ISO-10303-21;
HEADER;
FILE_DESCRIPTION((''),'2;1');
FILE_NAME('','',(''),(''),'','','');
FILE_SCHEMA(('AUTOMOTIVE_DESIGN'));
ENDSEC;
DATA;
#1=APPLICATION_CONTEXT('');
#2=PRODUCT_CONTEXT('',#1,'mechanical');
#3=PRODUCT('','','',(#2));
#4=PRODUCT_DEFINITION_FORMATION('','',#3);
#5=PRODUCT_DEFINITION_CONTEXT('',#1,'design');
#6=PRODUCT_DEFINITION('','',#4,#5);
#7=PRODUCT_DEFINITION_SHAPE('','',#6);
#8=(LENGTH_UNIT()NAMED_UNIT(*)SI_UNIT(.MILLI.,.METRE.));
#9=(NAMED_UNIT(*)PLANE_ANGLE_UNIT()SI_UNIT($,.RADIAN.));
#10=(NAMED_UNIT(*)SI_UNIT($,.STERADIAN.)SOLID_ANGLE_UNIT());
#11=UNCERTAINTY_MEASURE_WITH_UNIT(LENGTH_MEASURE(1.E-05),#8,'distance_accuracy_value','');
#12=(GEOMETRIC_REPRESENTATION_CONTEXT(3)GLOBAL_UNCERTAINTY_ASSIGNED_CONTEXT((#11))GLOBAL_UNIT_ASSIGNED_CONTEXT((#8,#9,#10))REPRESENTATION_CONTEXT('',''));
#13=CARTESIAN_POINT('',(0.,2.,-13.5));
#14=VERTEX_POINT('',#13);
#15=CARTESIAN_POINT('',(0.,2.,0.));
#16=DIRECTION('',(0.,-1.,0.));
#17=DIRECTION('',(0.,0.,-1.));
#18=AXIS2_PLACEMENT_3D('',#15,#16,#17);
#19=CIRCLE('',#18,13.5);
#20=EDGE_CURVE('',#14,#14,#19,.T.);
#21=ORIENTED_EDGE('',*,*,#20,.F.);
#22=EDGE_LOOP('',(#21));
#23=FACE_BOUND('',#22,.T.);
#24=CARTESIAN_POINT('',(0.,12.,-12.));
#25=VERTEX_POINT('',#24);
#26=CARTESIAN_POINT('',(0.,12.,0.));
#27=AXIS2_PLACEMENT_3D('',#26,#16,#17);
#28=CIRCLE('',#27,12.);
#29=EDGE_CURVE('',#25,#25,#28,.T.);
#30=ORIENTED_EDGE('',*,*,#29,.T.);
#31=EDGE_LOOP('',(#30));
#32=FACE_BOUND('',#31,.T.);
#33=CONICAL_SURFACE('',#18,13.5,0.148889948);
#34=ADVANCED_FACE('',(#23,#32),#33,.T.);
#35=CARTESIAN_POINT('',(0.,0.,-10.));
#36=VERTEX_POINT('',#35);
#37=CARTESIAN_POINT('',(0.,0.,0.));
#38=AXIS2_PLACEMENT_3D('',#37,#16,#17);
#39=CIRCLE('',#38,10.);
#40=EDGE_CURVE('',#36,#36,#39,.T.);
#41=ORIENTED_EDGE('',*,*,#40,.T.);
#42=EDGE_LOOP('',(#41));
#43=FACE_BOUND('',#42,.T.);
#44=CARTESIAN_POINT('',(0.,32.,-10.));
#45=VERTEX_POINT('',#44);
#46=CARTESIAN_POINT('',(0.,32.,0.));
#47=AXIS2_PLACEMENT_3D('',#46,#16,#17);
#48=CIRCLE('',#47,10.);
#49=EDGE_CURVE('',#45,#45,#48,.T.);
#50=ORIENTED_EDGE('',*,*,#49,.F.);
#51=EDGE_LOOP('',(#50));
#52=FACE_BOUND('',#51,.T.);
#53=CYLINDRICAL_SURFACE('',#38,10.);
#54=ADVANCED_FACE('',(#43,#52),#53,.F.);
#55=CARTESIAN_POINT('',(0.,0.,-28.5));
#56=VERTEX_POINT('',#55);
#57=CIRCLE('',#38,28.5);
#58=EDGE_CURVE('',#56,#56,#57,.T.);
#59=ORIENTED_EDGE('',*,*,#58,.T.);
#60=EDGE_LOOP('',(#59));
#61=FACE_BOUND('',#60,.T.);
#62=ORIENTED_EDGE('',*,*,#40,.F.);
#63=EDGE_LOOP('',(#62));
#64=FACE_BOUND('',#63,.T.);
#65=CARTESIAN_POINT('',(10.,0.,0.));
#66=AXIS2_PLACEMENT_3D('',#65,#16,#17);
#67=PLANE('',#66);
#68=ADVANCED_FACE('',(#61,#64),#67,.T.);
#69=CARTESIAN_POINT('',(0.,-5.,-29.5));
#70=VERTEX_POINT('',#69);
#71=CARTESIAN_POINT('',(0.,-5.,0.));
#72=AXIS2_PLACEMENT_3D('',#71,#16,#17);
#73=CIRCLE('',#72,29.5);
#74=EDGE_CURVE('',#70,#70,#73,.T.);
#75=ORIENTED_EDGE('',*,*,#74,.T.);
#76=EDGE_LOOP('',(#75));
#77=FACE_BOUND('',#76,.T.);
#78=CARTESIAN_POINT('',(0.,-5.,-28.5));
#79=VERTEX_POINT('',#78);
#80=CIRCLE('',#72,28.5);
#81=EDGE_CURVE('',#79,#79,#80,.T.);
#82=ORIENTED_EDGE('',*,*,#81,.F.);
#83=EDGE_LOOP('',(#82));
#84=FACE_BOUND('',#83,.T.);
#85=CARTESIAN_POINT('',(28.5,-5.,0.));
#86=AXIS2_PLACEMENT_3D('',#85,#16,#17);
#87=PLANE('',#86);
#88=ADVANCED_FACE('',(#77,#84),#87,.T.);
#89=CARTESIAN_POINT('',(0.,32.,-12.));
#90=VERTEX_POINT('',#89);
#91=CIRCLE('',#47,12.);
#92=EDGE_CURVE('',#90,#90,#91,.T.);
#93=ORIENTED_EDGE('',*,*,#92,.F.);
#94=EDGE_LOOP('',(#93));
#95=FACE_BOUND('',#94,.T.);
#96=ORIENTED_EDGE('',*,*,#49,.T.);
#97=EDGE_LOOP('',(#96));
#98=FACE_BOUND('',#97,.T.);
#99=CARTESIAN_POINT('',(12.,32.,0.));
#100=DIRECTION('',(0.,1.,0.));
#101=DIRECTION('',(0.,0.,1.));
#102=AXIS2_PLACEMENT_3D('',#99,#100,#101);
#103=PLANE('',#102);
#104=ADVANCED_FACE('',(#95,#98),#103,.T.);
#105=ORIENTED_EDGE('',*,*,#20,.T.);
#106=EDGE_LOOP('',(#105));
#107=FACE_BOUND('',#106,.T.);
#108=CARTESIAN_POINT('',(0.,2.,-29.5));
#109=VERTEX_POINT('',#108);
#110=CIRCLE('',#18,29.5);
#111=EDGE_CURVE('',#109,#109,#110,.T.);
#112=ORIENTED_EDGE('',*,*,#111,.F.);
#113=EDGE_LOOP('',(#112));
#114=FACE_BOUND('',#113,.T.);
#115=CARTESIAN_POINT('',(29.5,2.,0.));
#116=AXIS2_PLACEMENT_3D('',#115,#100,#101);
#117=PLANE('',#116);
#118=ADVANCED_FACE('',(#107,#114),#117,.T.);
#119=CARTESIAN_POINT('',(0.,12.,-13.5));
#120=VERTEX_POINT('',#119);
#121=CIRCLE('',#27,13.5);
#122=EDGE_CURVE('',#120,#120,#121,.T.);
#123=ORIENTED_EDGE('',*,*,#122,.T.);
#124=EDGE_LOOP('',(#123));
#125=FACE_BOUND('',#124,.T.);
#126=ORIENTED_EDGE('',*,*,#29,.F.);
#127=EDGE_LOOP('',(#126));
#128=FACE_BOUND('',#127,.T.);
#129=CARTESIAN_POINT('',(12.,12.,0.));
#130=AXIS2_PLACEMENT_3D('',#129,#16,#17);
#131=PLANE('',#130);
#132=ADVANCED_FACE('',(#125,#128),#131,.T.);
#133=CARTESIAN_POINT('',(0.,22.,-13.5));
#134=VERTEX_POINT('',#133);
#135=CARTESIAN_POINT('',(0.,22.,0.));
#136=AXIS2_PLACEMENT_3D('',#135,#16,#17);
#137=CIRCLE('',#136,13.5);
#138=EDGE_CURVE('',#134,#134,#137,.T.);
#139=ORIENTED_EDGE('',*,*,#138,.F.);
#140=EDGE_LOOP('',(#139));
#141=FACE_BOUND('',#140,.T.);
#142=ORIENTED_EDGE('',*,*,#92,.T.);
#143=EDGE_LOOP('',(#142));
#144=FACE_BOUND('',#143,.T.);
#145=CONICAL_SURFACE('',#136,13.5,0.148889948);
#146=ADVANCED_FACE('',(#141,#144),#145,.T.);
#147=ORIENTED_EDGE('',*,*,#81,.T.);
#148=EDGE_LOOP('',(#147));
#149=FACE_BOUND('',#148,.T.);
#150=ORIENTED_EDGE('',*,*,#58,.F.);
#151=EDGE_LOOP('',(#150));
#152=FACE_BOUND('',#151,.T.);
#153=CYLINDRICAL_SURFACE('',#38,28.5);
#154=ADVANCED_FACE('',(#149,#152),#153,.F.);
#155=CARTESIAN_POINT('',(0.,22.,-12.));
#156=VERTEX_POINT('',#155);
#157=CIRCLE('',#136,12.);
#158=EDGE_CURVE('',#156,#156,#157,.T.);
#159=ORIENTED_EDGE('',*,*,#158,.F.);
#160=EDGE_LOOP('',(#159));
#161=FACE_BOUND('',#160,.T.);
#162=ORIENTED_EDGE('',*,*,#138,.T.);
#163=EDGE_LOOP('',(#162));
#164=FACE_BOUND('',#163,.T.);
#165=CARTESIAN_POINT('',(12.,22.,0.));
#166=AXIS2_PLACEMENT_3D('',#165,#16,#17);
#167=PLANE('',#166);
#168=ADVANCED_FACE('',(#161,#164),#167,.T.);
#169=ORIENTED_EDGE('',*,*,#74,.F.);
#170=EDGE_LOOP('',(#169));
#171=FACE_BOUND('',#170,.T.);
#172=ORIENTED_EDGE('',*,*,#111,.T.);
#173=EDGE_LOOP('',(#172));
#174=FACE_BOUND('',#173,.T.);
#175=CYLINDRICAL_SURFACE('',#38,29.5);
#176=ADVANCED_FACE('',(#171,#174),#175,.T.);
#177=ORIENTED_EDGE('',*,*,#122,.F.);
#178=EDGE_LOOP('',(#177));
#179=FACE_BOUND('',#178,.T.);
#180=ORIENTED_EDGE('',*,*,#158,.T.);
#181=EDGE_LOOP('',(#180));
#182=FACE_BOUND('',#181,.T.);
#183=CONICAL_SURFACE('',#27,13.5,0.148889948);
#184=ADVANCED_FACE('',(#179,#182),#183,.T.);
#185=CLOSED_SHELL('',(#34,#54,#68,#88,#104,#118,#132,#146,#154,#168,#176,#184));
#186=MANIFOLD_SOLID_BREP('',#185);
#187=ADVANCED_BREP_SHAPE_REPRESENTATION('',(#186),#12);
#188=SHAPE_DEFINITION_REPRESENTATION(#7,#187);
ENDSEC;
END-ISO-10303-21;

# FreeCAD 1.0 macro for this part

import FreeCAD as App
import Part
import Sketcher
Q = App.Units.Quantity


def add_polygon(sketch, points):
    """Adds a closed chain of lines whose ends are joined by coincident constraints."""
    first, n = sketch.GeometryCount, len(points)
    for a, b in zip(points, points[1:] + points[:1]):
        sketch.addGeometry(Part.LineSegment(App.Vector(*a, 0), App.Vector(*b, 0)), False)
    for i in range(n):
        sketch.addConstraint(Sketcher.Constraint("Coincident", first + i, 2, first + (i + 1) % n, 1))

doc = App.newDocument("Part")
params = doc.addObject("Spreadsheet::Sheet", "Params")
for row, (alias, value) in enumerate([
    ("sketch1_width", "1 mm"),
    ("sketch1_width2", "16 mm"),
    ("sketch1_width3", "2 mm"),
    ("sketch1_height", "32 mm"),
    ("sketch1_height2", "5 mm"),
    ("revolution_angle", "360 deg"),
], start=1):
    params.set(f"A{row}", alias)
    params.set(f"B{row}", "=" + value)
    params.setAlias(f"B{row}", alias)

body = doc.addObject("PartDesign::Body", "Body")

sketch1 = body.newObject("Sketcher::SketchObject", "Sketch")
sketch1.AttachmentSupport = (doc.getObject("XY_Plane"), [""])
sketch1.MapMode = "FlatFace"
add_polygon(sketch1, [(10, 32), (10, 0), (28.5, 0), (28.5, -5), (29.5, -5), (29.5, 2), (13.5, 2), (12, 12), (13.5, 12), (12, 22), (13.5, 22), (12, 32)])
sketch1.addConstraint(Sketcher.Constraint("Vertical", 0))
sketch1.addConstraint(Sketcher.Constraint("Horizontal", 1))
sketch1.addConstraint(Sketcher.Constraint("Vertical", 2))
sketch1.addConstraint(Sketcher.Constraint("Horizontal", 3))
sketch1.addConstraint(Sketcher.Constraint("Vertical", 4))
sketch1.addConstraint(Sketcher.Constraint("Horizontal", 5))
sketch1.addConstraint(Sketcher.Constraint("Horizontal", 7))
sketch1.addConstraint(Sketcher.Constraint("Horizontal", 9))
sketch1.addConstraint(Sketcher.Constraint("Horizontal", 11))
sketch1.addConstraint(Sketcher.Constraint("PointOnObject", 0, 2, -1))
sketch1.addConstraint(Sketcher.Constraint("Parallel", 6, 8))
sketch1.addConstraint(Sketcher.Constraint("Parallel", 8, 10))
sketch1.addConstraint(Sketcher.Constraint("Vertical", 5, 2, 7, 2))
sketch1.addConstraint(Sketcher.Constraint("Vertical", 6, 2, 8, 2))
sketch1.addConstraint(Sketcher.Constraint("Vertical", 7, 2, 9, 2))
sketch1.addConstraint(Sketcher.Constraint("Vertical", 8, 2, 10, 2))
sketch1.addConstraint(Sketcher.Constraint("DistanceX", 3, 1, 3, 2, Q("1 mm")))
sketch1.addConstraint(Sketcher.Constraint("DistanceX", 5, 2, 5, 1, Q("16 mm")))
sketch1.addConstraint(Sketcher.Constraint("DistanceX", 11, 2, 11, 1, Q("2 mm")))
sketch1.addConstraint(Sketcher.Constraint("DistanceY", 0, 2, 0, 1, Q("32 mm")))
sketch1.addConstraint(Sketcher.Constraint("DistanceY", 2, 2, 2, 1, Q("5 mm")))
sketch1.addConstraint(Sketcher.Constraint("DistanceY", 4, 1, 4, 2, Q("7 mm")))
sketch1.addConstraint(Sketcher.Constraint("DistanceX", 1, 1, 1, 2, Q("18.5 mm")))
sketch1.addConstraint(Sketcher.Constraint("DistanceX", -1, 1, 0, 2, Q("10 mm")))
sketch1.setExpression("Constraints[28]", "Params.sketch1_width")
sketch1.setExpression("Constraints[29]", "Params.sketch1_width2")
sketch1.setExpression("Constraints[30]", "Params.sketch1_width3")
sketch1.setExpression("Constraints[31]", "Params.sketch1_height")
sketch1.setExpression("Constraints[32]", "Params.sketch1_height2")
revolution = body.newObject("PartDesign::Revolution", "Revolution")
revolution.Profile = sketch1
revolution.ReferenceAxis = (sketch1, ["V_Axis"])
revolution.setExpression("Angle", "Params.revolution_angle")

doc.recompute()
